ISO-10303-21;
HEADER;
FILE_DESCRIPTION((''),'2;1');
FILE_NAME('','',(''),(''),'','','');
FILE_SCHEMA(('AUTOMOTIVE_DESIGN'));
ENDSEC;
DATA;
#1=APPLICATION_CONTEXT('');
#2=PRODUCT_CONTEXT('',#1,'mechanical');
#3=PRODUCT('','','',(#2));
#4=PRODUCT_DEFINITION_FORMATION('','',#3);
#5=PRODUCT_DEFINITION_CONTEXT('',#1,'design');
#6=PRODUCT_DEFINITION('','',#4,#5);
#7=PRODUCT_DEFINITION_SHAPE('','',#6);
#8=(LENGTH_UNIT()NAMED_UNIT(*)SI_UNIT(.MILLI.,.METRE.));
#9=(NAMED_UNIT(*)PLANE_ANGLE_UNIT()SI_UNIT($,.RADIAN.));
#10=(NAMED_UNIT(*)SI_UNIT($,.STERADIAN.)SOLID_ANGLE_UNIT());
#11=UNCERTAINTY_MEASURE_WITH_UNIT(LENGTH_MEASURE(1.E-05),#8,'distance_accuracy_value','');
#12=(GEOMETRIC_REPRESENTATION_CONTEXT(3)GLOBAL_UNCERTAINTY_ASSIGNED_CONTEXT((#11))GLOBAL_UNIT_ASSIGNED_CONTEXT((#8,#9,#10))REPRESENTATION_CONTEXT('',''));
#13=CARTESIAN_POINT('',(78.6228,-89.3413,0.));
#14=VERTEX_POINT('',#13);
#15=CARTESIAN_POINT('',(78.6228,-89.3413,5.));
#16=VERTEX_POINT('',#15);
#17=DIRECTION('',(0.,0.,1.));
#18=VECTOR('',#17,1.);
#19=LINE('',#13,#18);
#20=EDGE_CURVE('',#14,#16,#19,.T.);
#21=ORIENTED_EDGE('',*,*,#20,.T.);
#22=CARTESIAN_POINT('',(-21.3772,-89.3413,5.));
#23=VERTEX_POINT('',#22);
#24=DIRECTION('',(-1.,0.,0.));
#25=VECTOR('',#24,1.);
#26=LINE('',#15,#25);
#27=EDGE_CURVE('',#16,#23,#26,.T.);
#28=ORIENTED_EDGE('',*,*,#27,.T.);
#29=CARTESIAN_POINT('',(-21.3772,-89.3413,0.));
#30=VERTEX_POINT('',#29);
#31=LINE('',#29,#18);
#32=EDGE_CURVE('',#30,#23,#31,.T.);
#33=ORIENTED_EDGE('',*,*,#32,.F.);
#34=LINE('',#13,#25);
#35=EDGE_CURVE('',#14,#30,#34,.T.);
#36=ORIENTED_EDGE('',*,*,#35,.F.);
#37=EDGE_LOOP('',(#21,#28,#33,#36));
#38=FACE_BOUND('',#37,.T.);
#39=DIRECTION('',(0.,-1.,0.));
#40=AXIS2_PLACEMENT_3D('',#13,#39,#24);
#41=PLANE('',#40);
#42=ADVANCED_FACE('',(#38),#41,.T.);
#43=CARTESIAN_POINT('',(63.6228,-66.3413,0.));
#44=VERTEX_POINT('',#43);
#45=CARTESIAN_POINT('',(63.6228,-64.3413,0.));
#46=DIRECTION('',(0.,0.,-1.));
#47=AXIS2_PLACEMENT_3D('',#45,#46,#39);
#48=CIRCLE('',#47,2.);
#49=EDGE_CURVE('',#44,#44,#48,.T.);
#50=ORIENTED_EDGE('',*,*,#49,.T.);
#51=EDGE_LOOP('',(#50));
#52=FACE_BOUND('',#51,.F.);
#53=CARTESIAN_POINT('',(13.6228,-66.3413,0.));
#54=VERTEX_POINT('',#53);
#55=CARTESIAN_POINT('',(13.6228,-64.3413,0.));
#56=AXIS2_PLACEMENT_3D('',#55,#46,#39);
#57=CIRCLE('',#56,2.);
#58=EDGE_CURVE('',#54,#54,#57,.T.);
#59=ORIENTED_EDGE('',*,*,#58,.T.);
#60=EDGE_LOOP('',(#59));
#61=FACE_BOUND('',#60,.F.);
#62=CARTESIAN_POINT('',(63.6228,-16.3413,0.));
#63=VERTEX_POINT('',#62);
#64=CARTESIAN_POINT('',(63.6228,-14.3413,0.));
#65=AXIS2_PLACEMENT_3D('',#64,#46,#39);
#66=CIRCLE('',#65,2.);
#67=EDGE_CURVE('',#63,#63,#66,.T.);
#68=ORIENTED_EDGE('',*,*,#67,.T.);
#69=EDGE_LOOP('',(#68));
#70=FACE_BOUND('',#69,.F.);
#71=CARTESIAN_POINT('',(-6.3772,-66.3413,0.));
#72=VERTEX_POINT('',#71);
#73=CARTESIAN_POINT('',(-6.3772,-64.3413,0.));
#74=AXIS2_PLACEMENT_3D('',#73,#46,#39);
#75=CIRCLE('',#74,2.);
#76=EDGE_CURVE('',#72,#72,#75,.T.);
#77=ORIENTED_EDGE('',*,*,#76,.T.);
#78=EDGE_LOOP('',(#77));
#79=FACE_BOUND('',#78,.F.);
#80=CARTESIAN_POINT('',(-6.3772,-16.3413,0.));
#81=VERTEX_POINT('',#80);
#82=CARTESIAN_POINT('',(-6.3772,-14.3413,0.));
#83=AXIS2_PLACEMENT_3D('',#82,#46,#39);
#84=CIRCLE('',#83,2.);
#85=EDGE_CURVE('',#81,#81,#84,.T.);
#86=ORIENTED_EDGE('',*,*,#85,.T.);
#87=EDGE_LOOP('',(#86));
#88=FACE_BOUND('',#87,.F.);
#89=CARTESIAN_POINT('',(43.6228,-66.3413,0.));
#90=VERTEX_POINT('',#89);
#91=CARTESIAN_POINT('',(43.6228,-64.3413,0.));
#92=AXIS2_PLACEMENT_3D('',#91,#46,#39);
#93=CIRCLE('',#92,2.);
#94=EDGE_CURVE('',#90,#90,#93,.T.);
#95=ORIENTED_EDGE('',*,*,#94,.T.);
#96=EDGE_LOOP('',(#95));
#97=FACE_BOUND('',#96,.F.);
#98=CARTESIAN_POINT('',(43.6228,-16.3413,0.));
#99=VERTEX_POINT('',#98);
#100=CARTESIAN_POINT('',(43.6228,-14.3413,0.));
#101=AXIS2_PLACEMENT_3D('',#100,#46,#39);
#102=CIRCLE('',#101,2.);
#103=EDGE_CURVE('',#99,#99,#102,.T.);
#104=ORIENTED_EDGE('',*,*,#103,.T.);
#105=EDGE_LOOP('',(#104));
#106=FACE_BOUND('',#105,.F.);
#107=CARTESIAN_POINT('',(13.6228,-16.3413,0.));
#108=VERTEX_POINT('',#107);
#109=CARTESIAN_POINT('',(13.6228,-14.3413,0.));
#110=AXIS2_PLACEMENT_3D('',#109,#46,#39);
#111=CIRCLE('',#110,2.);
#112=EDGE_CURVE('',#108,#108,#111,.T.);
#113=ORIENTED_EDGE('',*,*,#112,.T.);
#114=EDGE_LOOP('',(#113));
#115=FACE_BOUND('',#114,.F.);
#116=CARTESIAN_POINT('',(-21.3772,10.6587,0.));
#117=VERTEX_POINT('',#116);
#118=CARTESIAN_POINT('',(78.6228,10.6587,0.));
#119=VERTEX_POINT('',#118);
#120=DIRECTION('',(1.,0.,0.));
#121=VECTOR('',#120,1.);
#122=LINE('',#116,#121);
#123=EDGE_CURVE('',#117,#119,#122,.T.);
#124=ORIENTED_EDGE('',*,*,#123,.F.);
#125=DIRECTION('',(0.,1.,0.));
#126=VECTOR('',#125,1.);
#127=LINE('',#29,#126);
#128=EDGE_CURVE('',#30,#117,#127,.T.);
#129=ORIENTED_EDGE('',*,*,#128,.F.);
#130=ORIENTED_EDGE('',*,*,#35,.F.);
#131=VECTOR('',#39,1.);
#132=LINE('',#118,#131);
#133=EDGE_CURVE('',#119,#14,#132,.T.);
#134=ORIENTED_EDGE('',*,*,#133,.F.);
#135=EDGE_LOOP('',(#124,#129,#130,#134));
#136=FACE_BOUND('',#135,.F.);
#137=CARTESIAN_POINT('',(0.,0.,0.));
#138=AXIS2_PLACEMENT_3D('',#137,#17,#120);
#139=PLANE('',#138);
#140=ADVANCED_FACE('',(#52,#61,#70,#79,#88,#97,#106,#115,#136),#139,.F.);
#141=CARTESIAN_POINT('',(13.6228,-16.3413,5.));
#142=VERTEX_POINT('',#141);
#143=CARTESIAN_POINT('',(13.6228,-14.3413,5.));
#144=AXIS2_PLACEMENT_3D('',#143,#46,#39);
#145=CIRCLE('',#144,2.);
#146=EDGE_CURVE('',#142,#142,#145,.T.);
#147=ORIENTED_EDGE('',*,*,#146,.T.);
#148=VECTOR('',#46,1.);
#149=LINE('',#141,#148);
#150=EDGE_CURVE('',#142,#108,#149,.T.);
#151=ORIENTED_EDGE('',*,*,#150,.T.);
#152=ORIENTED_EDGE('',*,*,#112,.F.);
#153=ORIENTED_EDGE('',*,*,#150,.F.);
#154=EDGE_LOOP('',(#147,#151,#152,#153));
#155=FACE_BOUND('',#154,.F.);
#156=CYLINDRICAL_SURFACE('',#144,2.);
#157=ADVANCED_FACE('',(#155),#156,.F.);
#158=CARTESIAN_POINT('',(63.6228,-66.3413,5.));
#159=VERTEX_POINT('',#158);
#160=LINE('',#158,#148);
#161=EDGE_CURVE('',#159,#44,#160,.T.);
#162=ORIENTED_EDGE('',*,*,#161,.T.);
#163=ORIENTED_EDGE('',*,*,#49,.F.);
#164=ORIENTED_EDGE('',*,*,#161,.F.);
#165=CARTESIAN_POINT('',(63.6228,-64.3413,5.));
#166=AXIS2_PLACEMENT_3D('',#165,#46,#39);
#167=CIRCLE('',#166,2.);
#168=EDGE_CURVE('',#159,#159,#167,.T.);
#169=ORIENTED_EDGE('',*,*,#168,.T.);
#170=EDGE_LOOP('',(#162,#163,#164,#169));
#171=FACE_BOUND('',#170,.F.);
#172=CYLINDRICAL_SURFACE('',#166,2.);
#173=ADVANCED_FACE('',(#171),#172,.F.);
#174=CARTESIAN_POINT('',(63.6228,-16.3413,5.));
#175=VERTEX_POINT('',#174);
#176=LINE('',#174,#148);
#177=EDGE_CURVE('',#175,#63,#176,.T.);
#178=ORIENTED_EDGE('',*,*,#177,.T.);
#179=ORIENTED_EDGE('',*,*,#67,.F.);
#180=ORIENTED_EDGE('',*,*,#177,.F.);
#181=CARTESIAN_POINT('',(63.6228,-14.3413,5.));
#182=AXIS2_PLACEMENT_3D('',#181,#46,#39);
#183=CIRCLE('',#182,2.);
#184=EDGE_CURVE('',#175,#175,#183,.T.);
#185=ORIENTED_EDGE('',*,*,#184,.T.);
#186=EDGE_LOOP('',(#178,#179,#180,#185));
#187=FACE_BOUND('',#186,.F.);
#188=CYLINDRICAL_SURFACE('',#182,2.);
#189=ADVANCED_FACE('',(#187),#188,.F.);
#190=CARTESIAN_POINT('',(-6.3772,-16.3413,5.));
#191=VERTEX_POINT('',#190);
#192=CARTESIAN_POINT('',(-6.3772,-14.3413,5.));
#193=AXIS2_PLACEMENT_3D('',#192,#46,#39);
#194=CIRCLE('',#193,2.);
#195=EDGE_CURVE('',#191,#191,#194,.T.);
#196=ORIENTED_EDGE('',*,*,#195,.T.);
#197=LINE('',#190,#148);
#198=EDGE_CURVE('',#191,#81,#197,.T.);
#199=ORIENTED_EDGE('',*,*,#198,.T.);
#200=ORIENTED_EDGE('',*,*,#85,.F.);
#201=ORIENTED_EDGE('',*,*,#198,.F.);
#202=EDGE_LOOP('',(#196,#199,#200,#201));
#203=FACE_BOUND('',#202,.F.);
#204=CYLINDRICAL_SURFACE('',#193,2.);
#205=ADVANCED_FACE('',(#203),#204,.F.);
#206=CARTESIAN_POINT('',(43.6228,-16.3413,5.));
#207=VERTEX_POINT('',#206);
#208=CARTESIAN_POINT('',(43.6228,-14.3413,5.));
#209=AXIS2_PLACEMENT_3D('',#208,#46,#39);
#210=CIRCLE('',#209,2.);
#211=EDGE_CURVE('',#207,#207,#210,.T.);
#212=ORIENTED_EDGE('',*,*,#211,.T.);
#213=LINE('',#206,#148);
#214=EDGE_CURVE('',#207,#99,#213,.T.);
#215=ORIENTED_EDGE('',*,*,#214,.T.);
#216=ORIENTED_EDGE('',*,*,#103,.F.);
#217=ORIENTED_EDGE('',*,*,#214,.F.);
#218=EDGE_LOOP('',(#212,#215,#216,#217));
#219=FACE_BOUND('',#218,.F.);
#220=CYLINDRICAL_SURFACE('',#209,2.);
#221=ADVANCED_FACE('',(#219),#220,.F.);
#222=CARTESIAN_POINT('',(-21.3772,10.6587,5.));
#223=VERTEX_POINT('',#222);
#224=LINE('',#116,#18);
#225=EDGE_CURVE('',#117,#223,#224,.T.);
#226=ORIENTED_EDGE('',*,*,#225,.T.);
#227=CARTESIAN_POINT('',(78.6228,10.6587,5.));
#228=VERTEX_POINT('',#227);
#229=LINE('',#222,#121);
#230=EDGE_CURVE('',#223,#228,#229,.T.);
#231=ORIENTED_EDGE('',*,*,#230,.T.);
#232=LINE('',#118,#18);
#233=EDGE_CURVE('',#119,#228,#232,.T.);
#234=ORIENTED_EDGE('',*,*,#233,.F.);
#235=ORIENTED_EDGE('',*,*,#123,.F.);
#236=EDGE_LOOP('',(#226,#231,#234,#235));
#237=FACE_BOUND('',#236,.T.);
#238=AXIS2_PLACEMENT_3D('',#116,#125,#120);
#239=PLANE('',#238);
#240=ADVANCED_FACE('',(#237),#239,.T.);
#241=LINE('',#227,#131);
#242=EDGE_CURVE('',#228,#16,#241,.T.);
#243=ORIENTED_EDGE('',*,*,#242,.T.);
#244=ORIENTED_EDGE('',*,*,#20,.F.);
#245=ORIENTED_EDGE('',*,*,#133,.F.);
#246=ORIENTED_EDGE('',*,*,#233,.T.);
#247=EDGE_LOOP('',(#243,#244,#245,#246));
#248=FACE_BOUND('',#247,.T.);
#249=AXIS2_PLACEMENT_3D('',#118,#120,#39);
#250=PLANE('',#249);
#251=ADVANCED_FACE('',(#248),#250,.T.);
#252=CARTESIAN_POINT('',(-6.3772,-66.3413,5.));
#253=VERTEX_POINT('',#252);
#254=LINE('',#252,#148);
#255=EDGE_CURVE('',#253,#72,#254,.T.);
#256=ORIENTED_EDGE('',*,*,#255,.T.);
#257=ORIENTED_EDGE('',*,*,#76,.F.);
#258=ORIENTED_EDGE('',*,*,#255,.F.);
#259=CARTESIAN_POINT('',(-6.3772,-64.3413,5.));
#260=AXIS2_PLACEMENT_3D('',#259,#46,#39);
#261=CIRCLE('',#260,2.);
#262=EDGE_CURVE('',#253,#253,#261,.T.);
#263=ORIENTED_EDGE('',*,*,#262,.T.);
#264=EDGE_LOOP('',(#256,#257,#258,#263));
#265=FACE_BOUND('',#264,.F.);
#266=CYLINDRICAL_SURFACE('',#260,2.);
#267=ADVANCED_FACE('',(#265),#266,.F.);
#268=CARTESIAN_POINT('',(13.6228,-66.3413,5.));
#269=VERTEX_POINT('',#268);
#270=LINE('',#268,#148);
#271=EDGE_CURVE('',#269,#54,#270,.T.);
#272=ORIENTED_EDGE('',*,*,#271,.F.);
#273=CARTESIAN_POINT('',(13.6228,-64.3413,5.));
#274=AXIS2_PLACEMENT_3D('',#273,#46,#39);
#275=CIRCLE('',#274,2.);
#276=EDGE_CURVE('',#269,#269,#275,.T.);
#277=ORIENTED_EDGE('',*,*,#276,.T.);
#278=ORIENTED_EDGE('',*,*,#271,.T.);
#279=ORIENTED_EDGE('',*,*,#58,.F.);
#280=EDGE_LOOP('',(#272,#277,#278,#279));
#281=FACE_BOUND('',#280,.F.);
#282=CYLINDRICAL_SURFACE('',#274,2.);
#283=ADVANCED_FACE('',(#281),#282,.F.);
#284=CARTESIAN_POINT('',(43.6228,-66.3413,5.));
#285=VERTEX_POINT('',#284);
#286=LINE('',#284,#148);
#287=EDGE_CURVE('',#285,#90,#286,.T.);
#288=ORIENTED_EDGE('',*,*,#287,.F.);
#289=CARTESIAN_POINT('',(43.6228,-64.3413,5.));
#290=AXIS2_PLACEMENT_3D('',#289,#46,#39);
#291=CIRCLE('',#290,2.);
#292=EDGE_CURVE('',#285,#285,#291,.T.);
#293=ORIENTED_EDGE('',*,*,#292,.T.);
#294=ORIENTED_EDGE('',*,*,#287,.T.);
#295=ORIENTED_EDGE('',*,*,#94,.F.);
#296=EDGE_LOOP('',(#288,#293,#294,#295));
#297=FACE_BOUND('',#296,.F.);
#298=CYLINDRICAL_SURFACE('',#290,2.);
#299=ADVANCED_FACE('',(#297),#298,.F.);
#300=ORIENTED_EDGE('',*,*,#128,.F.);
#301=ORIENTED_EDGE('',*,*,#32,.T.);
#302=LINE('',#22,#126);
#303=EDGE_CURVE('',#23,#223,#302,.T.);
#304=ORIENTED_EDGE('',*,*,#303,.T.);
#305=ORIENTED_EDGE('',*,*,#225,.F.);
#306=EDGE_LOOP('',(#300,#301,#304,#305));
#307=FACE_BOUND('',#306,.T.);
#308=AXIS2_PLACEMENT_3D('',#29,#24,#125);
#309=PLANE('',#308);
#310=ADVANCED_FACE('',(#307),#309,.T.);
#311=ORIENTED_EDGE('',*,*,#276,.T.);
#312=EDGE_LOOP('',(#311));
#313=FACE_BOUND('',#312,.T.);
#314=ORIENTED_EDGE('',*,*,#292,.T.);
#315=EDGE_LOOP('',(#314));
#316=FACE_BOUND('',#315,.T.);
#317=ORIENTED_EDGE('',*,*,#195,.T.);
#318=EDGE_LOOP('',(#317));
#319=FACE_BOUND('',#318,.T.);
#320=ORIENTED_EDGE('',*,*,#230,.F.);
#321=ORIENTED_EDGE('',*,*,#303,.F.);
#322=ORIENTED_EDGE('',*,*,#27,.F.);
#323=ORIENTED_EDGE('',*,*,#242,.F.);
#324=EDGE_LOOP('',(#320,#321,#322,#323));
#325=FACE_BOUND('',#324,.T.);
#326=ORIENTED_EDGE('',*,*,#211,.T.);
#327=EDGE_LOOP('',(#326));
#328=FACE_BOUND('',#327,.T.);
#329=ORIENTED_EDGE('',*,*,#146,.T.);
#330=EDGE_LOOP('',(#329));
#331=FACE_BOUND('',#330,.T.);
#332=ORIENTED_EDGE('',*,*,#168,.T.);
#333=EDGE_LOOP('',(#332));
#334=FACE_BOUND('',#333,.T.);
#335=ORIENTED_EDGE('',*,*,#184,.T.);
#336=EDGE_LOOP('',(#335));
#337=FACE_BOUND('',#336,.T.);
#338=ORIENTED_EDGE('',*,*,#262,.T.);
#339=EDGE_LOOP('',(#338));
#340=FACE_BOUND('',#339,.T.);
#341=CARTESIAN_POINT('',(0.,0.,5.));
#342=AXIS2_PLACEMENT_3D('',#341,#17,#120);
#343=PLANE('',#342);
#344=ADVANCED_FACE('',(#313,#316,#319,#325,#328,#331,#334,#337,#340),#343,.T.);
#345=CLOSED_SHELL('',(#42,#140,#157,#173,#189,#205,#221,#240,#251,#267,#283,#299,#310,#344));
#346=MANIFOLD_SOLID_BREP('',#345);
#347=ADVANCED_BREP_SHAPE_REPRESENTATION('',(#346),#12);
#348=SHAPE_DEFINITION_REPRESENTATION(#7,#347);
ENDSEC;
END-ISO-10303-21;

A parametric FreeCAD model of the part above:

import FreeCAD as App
import Part
import Sketcher
Q = App.Units.Quantity

doc = App.newDocument("Part")
body = doc.addObject("PartDesign::Body", "Body")

# Sketch on XY plane
sketch1 = body.newObject("Sketcher::SketchObject", "Sketch")
sketch1.AttachmentSupport = (doc.getObject("XY_Plane"), [""])
sketch1.MapMode = "FlatFace"
sketch1.addGeometry(Part.LineSegment(App.Vector(78.6228, 10.6587, 0), App.Vector(-21.3772, 10.6587, 0)), False)
sketch1.addGeometry(Part.LineSegment(App.Vector(-21.3772, 10.6587, 0), App.Vector(-21.3772, -89.3413, 0)), False)
sketch1.addGeometry(Part.LineSegment(App.Vector(-21.3772, -89.3413, 0), App.Vector(78.6228, -89.3413, 0)), False)
sketch1.addGeometry(Part.LineSegment(App.Vector(78.6228, -89.3413, 0), App.Vector(78.6228, 10.6587, 0)), False)
sketch1.addConstraint(Sketcher.Constraint("Coincident", 0, 2, 1, 1))
sketch1.addConstraint(Sketcher.Constraint("Coincident", 1, 2, 2, 1))
sketch1.addConstraint(Sketcher.Constraint("Coincident", 2, 2, 3, 1))
sketch1.addConstraint(Sketcher.Constraint("Coincident", 3, 2, 0, 1))
sketch1.addConstraint(Sketcher.Constraint("Horizontal", 0))
sketch1.addConstraint(Sketcher.Constraint("Vertical", 1))
sketch1.addConstraint(Sketcher.Constraint("Horizontal", 2))
sketch1.addConstraint(Sketcher.Constraint("Vertical", 3))
sketch1.addConstraint(Sketcher.Constraint("Equal", 2, 1))
sketch1.addConstraint(Sketcher.Constraint("DistanceX", 0, 2, 0, 1, Q("100 mm")))
sketch1.addConstraint(Sketcher.Constraint("DistanceX", 0, 2, -1, 1, Q("21.3772 mm")))
sketch1.addConstraint(Sketcher.Constraint("DistanceY", -1, 1, 0, 2, Q("10.6587 mm")))
pad1 = body.newObject("PartDesign::Pad", "Pad")
pad1.Profile = sketch1
pad1.Length = 5

# Sketch on XY plane
sketch2 = body.newObject("Sketcher::SketchObject", "Sketch001")
sketch2.AttachmentSupport = (doc.getObject("XY_Plane"), [""])
sketch2.MapMode = "FlatFace"
sketch2.AttachmentOffset = App.Placement(App.Vector(0, 0, 5), App.Rotation())
sketch2.addGeometry(Part.Circle(App.Vector(-6.3772, -64.3413, 0), App.Vector(0, 0, 1), 2), False)
sketch2.addGeometry(Part.Circle(App.Vector(-6.3772, -14.3413, 0), App.Vector(0, 0, 1), 2), False)
sketch2.addGeometry(Part.Circle(App.Vector(13.6228, -64.3413, 0), App.Vector(0, 0, 1), 2), False)
sketch2.addGeometry(Part.Circle(App.Vector(13.6228, -14.3413, 0), App.Vector(0, 0, 1), 2), False)
sketch2.addGeometry(Part.Circle(App.Vector(43.6228, -64.3413, 0), App.Vector(0, 0, 1), 2), False)
sketch2.addGeometry(Part.Circle(App.Vector(43.6228, -14.3413, 0), App.Vector(0, 0, 1), 2), False)
sketch2.addGeometry(Part.Circle(App.Vector(63.6228, -14.3413, 0), App.Vector(0, 0, 1), 2), False)
sketch2.addGeometry(Part.Circle(App.Vector(63.6228, -64.3413, 0), App.Vector(0, 0, 1), 2), False)
sketch2.addConstraint(Sketcher.Constraint("Equal", 0, 1))
sketch2.addConstraint(Sketcher.Constraint("Equal", 1, 2))
sketch2.addConstraint(Sketcher.Constraint("Equal", 2, 3))
sketch2.addConstraint(Sketcher.Constraint("Equal", 3, 4))
sketch2.addConstraint(Sketcher.Constraint("Equal", 4, 5))
sketch2.addConstraint(Sketcher.Constraint("Equal", 5, 6))
sketch2.addConstraint(Sketcher.Constraint("Equal", 6, 7))
sketch2.addConstraint(Sketcher.Constraint("Horizontal", 0, 3, 2, 3))
sketch2.addConstraint(Sketcher.Constraint("Horizontal", 1, 3, 3, 3))
sketch2.addConstraint(Sketcher.Constraint("Horizontal", 2, 3, 4, 3))
sketch2.addConstraint(Sketcher.Constraint("Horizontal", 3, 3, 5, 3))
sketch2.addConstraint(Sketcher.Constraint("Horizontal", 5, 3, 6, 3))
sketch2.addConstraint(Sketcher.Constraint("Horizontal", 4, 3, 7, 3))
sketch2.addConstraint(Sketcher.Constraint("Vertical", 0, 3, 1, 3))
sketch2.addConstraint(Sketcher.Constraint("Vertical", 2, 3, 3, 3))
sketch2.addConstraint(Sketcher.Constraint("Vertical", 4, 3, 5, 3))
sketch2.addConstraint(Sketcher.Constraint("Vertical", 6, 3, 7, 3))
sketch2.addConstraint(Sketcher.Constraint("Diameter", 0, Q("4 mm")))
sketch2.addConstraint(Sketcher.Constraint("DistanceY", 0, 3, 1, 3, Q("50 mm")))
sketch2.addConstraint(Sketcher.Constraint("DistanceX", 0, 3, 2, 3, Q("20 mm")))
sketch2.addConstraint(Sketcher.Constraint("DistanceX", 2, 3, 4, 3, Q("30 mm")))
sketch2.addConstraint(Sketcher.Constraint("DistanceX", 5, 3, 6, 3, Q("20 mm")))
sketch2.addConstraint(Sketcher.Constraint("DistanceX", 0, 3, -1, 1, Q("6.3772 mm")))
sketch2.addConstraint(Sketcher.Constraint("DistanceY", 0, 3, -1, 1, Q("64.3413 mm")))
doc.recompute()
hole = body.newObject("PartDesign::Hole", "Hole")
hole.Profile = sketch2
hole.ThreadType = "None"
hole.Diameter = 4
hole.DepthType = "ThroughAll"

doc.recompute()
